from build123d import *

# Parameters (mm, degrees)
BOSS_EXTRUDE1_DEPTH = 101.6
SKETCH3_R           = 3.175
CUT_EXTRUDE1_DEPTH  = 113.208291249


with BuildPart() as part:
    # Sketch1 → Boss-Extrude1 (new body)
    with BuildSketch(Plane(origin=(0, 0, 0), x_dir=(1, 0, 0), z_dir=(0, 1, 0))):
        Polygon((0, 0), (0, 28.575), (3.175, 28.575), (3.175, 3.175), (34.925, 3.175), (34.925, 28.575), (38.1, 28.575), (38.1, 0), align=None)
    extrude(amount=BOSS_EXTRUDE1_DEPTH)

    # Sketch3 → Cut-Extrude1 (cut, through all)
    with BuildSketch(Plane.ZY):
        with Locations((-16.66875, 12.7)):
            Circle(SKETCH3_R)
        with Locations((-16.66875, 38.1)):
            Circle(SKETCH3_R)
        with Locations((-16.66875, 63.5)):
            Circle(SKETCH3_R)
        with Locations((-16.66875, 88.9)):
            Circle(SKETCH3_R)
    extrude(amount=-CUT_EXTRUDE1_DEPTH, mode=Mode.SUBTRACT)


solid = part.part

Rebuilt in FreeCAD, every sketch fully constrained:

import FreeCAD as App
import Part
import Sketcher
from FreeCAD import Vector
Q = App.Units.Quantity

doc = App.newDocument("Part")
params = doc.addObject("Spreadsheet::Sheet", "Params")
for row, (alias, value) in enumerate([
    ("sketch1_height", "1 in"),
    ("sketch1_width", "1.5 in"),
    ("sketch1_width2", "1.25 in"),
    ("sketch1_height2", "1.125 in"),
    ("pad1_length", "4 in"),
    ("sketch2_diameter", "0.25 in"),
], start=1):
    params.set(f"A{row}", alias)
    params.set(f"B{row}", "=" + value)
    params.setAlias(f"B{row}", alias)

body = doc.addObject("PartDesign::Body", "Body")

# Sketch on XZ plane
sketch1 = body.newObject("Sketcher::SketchObject", "Sketch")
sketch1.AttachmentSupport = (doc.getObject("XZ_Plane"), [""])
sketch1.MapMode = "FlatFace"
sketch1.addGeometry(Part.LineSegment(Vector(0, -28.6, 0), Vector(0, 0, 0)), False)
sketch1.addGeometry(Part.LineSegment(Vector(0, 0, 0), Vector(38.1, 0, 0)), False)
sketch1.addGeometry(Part.LineSegment(Vector(38.1, 0, 0), Vector(38.1, -28.6, 0)), False)
sketch1.addGeometry(Part.LineSegment(Vector(38.1, -28.6, 0), Vector(34.9, -28.6, 0)), False)
sketch1.addGeometry(Part.LineSegment(Vector(34.9, -28.6, 0), Vector(34.9, -3.2, 0)), False)
sketch1.addGeometry(Part.LineSegment(Vector(34.9, -3.2, 0), Vector(3.2, -3.2, 0)), False)
sketch1.addGeometry(Part.LineSegment(Vector(3.2, -3.2, 0), Vector(3.2, -28.6, 0)), False)
sketch1.addGeometry(Part.LineSegment(Vector(3.2, -28.6, 0), Vector(0, -28.6, 0)), False)
sketch1.addConstraint(Sketcher.Constraint("Coincident", 0, 2, 1, 1))
sketch1.addConstraint(Sketcher.Constraint("Coincident", 1, 2, 2, 1))
sketch1.addConstraint(Sketcher.Constraint("Coincident", 2, 2, 3, 1))
sketch1.addConstraint(Sketcher.Constraint("Coincident", 3, 2, 4, 1))
sketch1.addConstraint(Sketcher.Constraint("Coincident", 4, 2, 5, 1))
sketch1.addConstraint(Sketcher.Constraint("Coincident", 5, 2, 6, 1))
sketch1.addConstraint(Sketcher.Constraint("Coincident", 6, 2, 7, 1))
sketch1.addConstraint(Sketcher.Constraint("Coincident", 7, 2, 0, 1))
sketch1.addConstraint(Sketcher.Constraint("Vertical", 0))
sketch1.addConstraint(Sketcher.Constraint("Horizontal", 1))
sketch1.addConstraint(Sketcher.Constraint("Vertical", 2))
sketch1.addConstraint(Sketcher.Constraint("Horizontal", 3))
sketch1.addConstraint(Sketcher.Constraint("Vertical", 4))
sketch1.addConstraint(Sketcher.Constraint("Horizontal", 5))
sketch1.addConstraint(Sketcher.Constraint("Vertical", 6))
sketch1.addConstraint(Sketcher.Constraint("Horizontal", 7))
sketch1.addConstraint(Sketcher.Constraint("Coincident", 0, 2, -1, 1))
sketch1.addConstraint(Sketcher.Constraint("Horizontal", 3, 2, 6, 2))
sketch1.addConstraint(Sketcher.Constraint("Equal", 3, 7))
sketch1.addConstraint(Sketcher.Constraint("DistanceY", 4, 1, 4, 2, Q("1 in")))
sketch1.addConstraint(Sketcher.Constraint("DistanceX", 1, 1, 1, 2, Q("1.5 in")))
sketch1.addConstraint(Sketcher.Constraint("DistanceX", 5, 2, 5, 1, Q("1.25 in")))
sketch1.addConstraint(Sketcher.Constraint("DistanceY", 0, 1, 0, 2, Q("1.125 in")))
sketch1.setExpression("Constraints[19]", "Params.sketch1_height")
sketch1.setExpression("Constraints[20]", "Params.sketch1_width")
sketch1.setExpression("Constraints[21]", "Params.sketch1_width2")
sketch1.setExpression("Constraints[22]", "Params.sketch1_height2")
pad1 = body.newObject("PartDesign::Pad", "Pad")
pad1.Profile = sketch1
pad1.setExpression("Length", "Params.pad1_length")
pad1.Reversed = True

# Sketch on YZ plane
sketch2 = body.newObject("Sketcher::SketchObject", "Sketch001")
sketch2.AttachmentSupport = (doc.getObject("YZ_Plane"), [""])
sketch2.MapMode = "FlatFace"
sketch2.addGeometry(Part.Circle(Vector(12.7, -16.7, 0), Vector(0, 0, 1), 3.2), False)
sketch2.addGeometry(Part.Circle(Vector(38.1, -16.7, 0), Vector(0, 0, 1), 3.2), False)
sketch2.addGeometry(Part.Circle(Vector(63.5, -16.7, 0), Vector(0, 0, 1), 3.2), False)
sketch2.addGeometry(Part.Circle(Vector(88.9, -16.7, 0), Vector(0, 0, 1), 3.2), False)
sketch2.addConstraint(Sketcher.Constraint("Equal", 0, 1))
sketch2.addConstraint(Sketcher.Constraint("Equal", 1, 2))
sketch2.addConstraint(Sketcher.Constraint("Equal", 2, 3))
sketch2.addConstraint(Sketcher.Constraint("Horizontal", 0, 3, 1, 3))
sketch2.addConstraint(Sketcher.Constraint("Horizontal", 1, 3, 2, 3))
sketch2.addConstraint(Sketcher.Constraint("Horizontal", 2, 3, 3, 3))
sketch2.addConstraint(Sketcher.Constraint("Diameter", 0, Q("0.25 in")))
sketch2.addConstraint(Sketcher.Constraint("DistanceX", 0, 3, 1, 3, Q("1 in")))
sketch2.addConstraint(Sketcher.Constraint("DistanceX", 1, 3, 2, 3, Q("1 in")))
sketch2.addConstraint(Sketcher.Constraint("DistanceX", 2, 3, 3, 3, Q("1 in")))
sketch2.addConstraint(Sketcher.Constraint("DistanceX", -1, 1, 0, 3, Q("0.5 in")))
sketch2.addConstraint(Sketcher.Constraint("DistanceY", 0, 3, -1, 1, Q("0.65625 in")))
sketch2.setExpression("Constraints[6]", "Params.sketch2_diameter")
pocket1 = body.newObject("PartDesign::Pocket", "Pocket")
pocket1.Profile = sketch2
pocket1.Type = "ThroughAll"
pocket1.Reversed = True

doc.recompute()
